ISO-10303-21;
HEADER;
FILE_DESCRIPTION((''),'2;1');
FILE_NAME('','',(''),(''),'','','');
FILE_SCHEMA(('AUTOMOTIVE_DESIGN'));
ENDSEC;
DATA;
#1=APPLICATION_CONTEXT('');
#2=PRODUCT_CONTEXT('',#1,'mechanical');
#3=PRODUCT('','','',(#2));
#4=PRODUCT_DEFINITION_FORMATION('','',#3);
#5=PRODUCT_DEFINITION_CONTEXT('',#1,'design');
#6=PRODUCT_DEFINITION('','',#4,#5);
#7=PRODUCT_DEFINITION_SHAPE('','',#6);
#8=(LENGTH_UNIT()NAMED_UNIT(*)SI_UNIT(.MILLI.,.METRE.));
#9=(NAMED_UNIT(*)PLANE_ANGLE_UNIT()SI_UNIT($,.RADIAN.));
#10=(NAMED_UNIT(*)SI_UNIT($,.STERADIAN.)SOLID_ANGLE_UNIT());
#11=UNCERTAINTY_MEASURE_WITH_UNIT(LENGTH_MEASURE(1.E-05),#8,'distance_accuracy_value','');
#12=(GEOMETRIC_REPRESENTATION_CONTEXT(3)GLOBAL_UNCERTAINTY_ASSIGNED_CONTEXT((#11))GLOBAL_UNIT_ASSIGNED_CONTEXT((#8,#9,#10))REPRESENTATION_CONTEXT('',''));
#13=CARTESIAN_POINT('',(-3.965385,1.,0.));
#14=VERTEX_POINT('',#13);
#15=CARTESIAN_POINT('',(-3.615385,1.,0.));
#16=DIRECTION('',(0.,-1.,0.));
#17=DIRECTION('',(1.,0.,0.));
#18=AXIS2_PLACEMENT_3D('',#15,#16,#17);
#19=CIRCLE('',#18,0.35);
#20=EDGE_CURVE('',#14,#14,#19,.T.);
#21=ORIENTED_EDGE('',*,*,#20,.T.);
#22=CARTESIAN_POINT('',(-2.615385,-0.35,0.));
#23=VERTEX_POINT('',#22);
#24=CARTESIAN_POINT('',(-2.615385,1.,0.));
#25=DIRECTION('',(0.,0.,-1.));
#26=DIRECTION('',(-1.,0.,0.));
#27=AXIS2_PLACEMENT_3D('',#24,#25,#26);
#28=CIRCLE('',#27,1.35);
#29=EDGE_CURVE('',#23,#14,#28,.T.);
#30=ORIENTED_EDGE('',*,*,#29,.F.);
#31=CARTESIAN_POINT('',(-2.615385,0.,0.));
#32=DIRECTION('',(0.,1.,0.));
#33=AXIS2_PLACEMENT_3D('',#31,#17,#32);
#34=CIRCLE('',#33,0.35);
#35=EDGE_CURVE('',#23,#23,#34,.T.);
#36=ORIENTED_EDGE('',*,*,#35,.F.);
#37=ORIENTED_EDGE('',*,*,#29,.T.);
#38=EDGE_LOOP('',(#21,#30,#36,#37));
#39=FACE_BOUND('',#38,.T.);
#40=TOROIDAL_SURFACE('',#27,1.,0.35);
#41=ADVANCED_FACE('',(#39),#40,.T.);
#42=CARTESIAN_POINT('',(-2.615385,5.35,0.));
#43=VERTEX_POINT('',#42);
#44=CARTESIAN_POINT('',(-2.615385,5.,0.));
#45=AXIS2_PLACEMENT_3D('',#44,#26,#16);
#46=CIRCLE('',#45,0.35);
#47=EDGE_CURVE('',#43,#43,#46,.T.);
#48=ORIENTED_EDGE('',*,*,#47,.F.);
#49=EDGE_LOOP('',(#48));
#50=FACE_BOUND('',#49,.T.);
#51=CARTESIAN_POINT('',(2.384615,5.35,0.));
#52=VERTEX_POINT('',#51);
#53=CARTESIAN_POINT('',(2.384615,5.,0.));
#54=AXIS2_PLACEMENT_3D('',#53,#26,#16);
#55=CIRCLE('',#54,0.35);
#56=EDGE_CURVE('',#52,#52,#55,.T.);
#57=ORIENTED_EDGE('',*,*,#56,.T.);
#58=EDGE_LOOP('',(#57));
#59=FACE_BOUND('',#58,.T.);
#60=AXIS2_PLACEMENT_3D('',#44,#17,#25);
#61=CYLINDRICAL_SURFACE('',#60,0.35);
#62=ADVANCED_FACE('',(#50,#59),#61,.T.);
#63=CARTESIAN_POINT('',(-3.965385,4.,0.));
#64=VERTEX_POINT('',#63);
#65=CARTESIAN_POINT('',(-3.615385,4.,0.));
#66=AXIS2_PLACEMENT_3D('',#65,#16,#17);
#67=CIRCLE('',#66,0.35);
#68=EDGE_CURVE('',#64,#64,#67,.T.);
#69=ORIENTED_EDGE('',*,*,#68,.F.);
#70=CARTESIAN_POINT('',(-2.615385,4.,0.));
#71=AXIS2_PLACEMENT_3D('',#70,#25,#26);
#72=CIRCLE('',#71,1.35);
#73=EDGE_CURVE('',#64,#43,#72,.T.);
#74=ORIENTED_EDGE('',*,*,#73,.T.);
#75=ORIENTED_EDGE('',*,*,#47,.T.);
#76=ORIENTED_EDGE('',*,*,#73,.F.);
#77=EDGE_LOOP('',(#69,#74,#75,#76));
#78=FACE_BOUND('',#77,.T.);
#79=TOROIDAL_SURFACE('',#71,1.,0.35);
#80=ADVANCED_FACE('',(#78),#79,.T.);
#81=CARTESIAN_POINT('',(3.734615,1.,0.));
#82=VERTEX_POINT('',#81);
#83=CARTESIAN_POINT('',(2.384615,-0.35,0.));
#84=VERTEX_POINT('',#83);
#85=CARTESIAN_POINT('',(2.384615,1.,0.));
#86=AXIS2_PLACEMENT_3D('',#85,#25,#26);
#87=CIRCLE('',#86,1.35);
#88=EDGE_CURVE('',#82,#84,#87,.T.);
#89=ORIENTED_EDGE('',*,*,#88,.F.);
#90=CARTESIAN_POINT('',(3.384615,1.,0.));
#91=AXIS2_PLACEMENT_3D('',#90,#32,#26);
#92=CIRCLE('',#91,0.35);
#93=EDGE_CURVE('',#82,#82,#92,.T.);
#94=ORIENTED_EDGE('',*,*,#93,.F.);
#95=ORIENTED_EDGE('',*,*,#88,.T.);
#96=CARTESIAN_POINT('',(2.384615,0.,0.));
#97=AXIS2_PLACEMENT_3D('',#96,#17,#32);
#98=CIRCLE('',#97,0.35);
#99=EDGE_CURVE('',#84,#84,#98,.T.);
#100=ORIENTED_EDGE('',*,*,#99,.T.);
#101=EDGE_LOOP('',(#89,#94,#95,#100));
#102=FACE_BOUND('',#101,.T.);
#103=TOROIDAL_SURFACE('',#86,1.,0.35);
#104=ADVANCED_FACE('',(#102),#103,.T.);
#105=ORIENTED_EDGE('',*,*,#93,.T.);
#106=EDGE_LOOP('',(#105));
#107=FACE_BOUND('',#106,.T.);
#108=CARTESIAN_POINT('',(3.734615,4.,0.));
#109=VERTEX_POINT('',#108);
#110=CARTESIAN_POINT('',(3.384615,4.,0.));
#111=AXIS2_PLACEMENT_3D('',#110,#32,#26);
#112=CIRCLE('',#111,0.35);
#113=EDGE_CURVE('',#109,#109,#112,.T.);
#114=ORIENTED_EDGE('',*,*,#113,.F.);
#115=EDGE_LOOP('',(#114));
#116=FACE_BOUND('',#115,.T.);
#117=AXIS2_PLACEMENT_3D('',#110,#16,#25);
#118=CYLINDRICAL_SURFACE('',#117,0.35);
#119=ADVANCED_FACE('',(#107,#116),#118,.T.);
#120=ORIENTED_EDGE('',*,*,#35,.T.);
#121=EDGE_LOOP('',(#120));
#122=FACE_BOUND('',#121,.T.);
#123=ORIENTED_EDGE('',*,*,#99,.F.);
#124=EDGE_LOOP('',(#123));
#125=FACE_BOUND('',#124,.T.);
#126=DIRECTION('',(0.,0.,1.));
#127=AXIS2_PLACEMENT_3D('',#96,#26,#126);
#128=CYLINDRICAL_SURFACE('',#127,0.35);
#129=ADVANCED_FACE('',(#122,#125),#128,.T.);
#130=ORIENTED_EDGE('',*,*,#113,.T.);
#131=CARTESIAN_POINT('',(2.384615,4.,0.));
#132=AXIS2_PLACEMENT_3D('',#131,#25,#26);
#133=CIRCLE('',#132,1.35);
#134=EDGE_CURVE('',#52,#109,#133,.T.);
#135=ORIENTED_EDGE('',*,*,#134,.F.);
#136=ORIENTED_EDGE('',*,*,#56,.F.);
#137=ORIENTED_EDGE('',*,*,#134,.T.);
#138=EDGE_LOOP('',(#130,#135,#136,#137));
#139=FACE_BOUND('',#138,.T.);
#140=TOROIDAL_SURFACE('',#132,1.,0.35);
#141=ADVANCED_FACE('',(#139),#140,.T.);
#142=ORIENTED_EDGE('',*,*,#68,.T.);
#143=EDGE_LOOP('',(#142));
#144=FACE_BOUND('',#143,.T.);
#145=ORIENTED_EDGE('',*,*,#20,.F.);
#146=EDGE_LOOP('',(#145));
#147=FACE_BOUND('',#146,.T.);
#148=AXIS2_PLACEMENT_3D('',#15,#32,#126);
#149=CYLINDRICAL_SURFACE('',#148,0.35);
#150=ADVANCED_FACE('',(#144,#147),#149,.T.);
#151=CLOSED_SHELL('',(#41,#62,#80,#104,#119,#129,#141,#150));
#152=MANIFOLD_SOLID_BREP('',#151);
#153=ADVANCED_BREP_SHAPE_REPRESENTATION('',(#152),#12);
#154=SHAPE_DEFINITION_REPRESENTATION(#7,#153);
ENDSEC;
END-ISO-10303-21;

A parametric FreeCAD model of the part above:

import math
import FreeCAD as App
import Part
import Sketcher

doc = App.newDocument("Part")
params = doc.addObject("Spreadsheet::Sheet", "Params")
for row, (alias, value) in enumerate([
    ("sketch1_diameter", "0.7 mm"),
    ("sketch2_radius", "1 mm"),
    ("sketch2_width", "5 mm"),
    ("sketch2_height", "3 mm"),
], start=1):
    params.set(f"A{row}", alias)
    params.set(f"B{row}", "=" + value)
    params.setAlias(f"B{row}", alias)

body = doc.addObject("PartDesign::Body", "Body")

sketch1 = doc.addObject("Sketcher::SketchObject", "Sketch")
body.addObject(sketch1)
sketch1.AttachmentSupport = (doc.XZ_Plane, [""])
sketch1.MapMode = "FlatFace"
sketch1.AttachmentOffset = App.Placement(App.Vector(0, 0, -4), App.Rotation())
sketch1.addGeometry(Part.Circle(App.Vector(-3.62, 0, 0), App.Vector(0, 0, 1), 0.35), False)
sketch1.addConstraint(Sketcher.Constraint("PointOnObject", 0, 3, -1))
sketch1.addConstraint(Sketcher.Constraint("Diameter", 0, 0.7))
sketch1.addConstraint(Sketcher.Constraint("DistanceX", 0, 3, -1, 1, 3.615385))
sketch1.setExpression("Constraints[1]", "Params.sketch1_diameter")

sketch2 = doc.addObject("Sketcher::SketchObject", "Sketch001")
body.addObject(sketch2)
sketch2.AttachmentSupport = (doc.XY_Plane, [""])
sketch2.MapMode = "FlatFace"
sketch2.addGeometry(Part.LineSegment(App.Vector(-3.6, 4, 0), App.Vector(-3.6, 1, 0)), False)
sketch2.addGeometry(Part.ArcOfCircle(Part.Circle(App.Vector(-2.6, 1, 0), App.Vector(0, 0, 1), 1), math.radians(180), math.radians(270)), False)
sketch2.addGeometry(Part.LineSegment(App.Vector(-2.6, 0, 0), App.Vector(2.4, 0, 0)), False)
sketch2.addGeometry(Part.ArcOfCircle(Part.Circle(App.Vector(2.4, 1, 0), App.Vector(0, 0, 1), 1), math.radians(-90), math.radians(0)), False)
sketch2.addGeometry(Part.LineSegment(App.Vector(3.4, 1, 0), App.Vector(3.4, 4, 0)), False)
sketch2.addGeometry(Part.ArcOfCircle(Part.Circle(App.Vector(2.4, 4, 0), App.Vector(0, 0, 1), 1), math.radians(0), math.radians(90)), False)
sketch2.addGeometry(Part.LineSegment(App.Vector(2.4, 5, 0), App.Vector(-2.6, 5, 0)), False)
sketch2.addGeometry(Part.ArcOfCircle(Part.Circle(App.Vector(-2.6, 4, 0), App.Vector(0, 0, 1), 1), math.radians(90), math.radians(180)), False)
sketch2.addConstraint(Sketcher.Constraint("Tangent", 0, 2, 1, 1))
sketch2.addConstraint(Sketcher.Constraint("Tangent", 1, 2, 2, 1))
sketch2.addConstraint(Sketcher.Constraint("Tangent", 2, 2, 3, 1))
sketch2.addConstraint(Sketcher.Constraint("Tangent", 3, 2, 4, 1))
sketch2.addConstraint(Sketcher.Constraint("Tangent", 4, 2, 5, 1))
sketch2.addConstraint(Sketcher.Constraint("Tangent", 5, 2, 6, 1))
sketch2.addConstraint(Sketcher.Constraint("Tangent", 6, 2, 7, 1))
sketch2.addConstraint(Sketcher.Constraint("Tangent", 7, 2, 0, 1))
sketch2.addConstraint(Sketcher.Constraint("Vertical", 0))
sketch2.addConstraint(Sketcher.Constraint("Horizontal", 2))
sketch2.addConstraint(Sketcher.Constraint("Vertical", 4))
sketch2.addConstraint(Sketcher.Constraint("Horizontal", 6))
sketch2.addConstraint(Sketcher.Constraint("Equal", 1, 3))
sketch2.addConstraint(Sketcher.Constraint("Equal", 3, 5))
sketch2.addConstraint(Sketcher.Constraint("Equal", 5, 7))
sketch2.addConstraint(Sketcher.Constraint("PointOnObject", 1, 2, -1))
sketch2.addConstraint(Sketcher.Constraint("Radius", 1, 1.0))
sketch2.addConstraint(Sketcher.Constraint("DistanceX", 2, 1, 2, 2, 5.0))
sketch2.addConstraint(Sketcher.Constraint("DistanceY", 0, 2, 0, 1, 3.0))
sketch2.addConstraint(Sketcher.Constraint("DistanceX", 1, 3, -1, 1, 2.615385))
sketch2.setExpression("Constraints[16]", "Params.sketch2_radius")
sketch2.setExpression("Constraints[17]", "Params.sketch2_width")
sketch2.setExpression("Constraints[18]", "Params.sketch2_height")
doc.recompute()

additivepipe = doc.addObject("PartDesign::AdditivePipe", "AdditivePipe")
body.addObject(additivepipe)
additivepipe.Profile = sketch1
additivepipe.Spine = (sketch2, ["Edge1", "Edge2", "Edge3", "Edge4", "Edge5", "Edge6", "Edge7", "Edge8"])

doc.recompute()
